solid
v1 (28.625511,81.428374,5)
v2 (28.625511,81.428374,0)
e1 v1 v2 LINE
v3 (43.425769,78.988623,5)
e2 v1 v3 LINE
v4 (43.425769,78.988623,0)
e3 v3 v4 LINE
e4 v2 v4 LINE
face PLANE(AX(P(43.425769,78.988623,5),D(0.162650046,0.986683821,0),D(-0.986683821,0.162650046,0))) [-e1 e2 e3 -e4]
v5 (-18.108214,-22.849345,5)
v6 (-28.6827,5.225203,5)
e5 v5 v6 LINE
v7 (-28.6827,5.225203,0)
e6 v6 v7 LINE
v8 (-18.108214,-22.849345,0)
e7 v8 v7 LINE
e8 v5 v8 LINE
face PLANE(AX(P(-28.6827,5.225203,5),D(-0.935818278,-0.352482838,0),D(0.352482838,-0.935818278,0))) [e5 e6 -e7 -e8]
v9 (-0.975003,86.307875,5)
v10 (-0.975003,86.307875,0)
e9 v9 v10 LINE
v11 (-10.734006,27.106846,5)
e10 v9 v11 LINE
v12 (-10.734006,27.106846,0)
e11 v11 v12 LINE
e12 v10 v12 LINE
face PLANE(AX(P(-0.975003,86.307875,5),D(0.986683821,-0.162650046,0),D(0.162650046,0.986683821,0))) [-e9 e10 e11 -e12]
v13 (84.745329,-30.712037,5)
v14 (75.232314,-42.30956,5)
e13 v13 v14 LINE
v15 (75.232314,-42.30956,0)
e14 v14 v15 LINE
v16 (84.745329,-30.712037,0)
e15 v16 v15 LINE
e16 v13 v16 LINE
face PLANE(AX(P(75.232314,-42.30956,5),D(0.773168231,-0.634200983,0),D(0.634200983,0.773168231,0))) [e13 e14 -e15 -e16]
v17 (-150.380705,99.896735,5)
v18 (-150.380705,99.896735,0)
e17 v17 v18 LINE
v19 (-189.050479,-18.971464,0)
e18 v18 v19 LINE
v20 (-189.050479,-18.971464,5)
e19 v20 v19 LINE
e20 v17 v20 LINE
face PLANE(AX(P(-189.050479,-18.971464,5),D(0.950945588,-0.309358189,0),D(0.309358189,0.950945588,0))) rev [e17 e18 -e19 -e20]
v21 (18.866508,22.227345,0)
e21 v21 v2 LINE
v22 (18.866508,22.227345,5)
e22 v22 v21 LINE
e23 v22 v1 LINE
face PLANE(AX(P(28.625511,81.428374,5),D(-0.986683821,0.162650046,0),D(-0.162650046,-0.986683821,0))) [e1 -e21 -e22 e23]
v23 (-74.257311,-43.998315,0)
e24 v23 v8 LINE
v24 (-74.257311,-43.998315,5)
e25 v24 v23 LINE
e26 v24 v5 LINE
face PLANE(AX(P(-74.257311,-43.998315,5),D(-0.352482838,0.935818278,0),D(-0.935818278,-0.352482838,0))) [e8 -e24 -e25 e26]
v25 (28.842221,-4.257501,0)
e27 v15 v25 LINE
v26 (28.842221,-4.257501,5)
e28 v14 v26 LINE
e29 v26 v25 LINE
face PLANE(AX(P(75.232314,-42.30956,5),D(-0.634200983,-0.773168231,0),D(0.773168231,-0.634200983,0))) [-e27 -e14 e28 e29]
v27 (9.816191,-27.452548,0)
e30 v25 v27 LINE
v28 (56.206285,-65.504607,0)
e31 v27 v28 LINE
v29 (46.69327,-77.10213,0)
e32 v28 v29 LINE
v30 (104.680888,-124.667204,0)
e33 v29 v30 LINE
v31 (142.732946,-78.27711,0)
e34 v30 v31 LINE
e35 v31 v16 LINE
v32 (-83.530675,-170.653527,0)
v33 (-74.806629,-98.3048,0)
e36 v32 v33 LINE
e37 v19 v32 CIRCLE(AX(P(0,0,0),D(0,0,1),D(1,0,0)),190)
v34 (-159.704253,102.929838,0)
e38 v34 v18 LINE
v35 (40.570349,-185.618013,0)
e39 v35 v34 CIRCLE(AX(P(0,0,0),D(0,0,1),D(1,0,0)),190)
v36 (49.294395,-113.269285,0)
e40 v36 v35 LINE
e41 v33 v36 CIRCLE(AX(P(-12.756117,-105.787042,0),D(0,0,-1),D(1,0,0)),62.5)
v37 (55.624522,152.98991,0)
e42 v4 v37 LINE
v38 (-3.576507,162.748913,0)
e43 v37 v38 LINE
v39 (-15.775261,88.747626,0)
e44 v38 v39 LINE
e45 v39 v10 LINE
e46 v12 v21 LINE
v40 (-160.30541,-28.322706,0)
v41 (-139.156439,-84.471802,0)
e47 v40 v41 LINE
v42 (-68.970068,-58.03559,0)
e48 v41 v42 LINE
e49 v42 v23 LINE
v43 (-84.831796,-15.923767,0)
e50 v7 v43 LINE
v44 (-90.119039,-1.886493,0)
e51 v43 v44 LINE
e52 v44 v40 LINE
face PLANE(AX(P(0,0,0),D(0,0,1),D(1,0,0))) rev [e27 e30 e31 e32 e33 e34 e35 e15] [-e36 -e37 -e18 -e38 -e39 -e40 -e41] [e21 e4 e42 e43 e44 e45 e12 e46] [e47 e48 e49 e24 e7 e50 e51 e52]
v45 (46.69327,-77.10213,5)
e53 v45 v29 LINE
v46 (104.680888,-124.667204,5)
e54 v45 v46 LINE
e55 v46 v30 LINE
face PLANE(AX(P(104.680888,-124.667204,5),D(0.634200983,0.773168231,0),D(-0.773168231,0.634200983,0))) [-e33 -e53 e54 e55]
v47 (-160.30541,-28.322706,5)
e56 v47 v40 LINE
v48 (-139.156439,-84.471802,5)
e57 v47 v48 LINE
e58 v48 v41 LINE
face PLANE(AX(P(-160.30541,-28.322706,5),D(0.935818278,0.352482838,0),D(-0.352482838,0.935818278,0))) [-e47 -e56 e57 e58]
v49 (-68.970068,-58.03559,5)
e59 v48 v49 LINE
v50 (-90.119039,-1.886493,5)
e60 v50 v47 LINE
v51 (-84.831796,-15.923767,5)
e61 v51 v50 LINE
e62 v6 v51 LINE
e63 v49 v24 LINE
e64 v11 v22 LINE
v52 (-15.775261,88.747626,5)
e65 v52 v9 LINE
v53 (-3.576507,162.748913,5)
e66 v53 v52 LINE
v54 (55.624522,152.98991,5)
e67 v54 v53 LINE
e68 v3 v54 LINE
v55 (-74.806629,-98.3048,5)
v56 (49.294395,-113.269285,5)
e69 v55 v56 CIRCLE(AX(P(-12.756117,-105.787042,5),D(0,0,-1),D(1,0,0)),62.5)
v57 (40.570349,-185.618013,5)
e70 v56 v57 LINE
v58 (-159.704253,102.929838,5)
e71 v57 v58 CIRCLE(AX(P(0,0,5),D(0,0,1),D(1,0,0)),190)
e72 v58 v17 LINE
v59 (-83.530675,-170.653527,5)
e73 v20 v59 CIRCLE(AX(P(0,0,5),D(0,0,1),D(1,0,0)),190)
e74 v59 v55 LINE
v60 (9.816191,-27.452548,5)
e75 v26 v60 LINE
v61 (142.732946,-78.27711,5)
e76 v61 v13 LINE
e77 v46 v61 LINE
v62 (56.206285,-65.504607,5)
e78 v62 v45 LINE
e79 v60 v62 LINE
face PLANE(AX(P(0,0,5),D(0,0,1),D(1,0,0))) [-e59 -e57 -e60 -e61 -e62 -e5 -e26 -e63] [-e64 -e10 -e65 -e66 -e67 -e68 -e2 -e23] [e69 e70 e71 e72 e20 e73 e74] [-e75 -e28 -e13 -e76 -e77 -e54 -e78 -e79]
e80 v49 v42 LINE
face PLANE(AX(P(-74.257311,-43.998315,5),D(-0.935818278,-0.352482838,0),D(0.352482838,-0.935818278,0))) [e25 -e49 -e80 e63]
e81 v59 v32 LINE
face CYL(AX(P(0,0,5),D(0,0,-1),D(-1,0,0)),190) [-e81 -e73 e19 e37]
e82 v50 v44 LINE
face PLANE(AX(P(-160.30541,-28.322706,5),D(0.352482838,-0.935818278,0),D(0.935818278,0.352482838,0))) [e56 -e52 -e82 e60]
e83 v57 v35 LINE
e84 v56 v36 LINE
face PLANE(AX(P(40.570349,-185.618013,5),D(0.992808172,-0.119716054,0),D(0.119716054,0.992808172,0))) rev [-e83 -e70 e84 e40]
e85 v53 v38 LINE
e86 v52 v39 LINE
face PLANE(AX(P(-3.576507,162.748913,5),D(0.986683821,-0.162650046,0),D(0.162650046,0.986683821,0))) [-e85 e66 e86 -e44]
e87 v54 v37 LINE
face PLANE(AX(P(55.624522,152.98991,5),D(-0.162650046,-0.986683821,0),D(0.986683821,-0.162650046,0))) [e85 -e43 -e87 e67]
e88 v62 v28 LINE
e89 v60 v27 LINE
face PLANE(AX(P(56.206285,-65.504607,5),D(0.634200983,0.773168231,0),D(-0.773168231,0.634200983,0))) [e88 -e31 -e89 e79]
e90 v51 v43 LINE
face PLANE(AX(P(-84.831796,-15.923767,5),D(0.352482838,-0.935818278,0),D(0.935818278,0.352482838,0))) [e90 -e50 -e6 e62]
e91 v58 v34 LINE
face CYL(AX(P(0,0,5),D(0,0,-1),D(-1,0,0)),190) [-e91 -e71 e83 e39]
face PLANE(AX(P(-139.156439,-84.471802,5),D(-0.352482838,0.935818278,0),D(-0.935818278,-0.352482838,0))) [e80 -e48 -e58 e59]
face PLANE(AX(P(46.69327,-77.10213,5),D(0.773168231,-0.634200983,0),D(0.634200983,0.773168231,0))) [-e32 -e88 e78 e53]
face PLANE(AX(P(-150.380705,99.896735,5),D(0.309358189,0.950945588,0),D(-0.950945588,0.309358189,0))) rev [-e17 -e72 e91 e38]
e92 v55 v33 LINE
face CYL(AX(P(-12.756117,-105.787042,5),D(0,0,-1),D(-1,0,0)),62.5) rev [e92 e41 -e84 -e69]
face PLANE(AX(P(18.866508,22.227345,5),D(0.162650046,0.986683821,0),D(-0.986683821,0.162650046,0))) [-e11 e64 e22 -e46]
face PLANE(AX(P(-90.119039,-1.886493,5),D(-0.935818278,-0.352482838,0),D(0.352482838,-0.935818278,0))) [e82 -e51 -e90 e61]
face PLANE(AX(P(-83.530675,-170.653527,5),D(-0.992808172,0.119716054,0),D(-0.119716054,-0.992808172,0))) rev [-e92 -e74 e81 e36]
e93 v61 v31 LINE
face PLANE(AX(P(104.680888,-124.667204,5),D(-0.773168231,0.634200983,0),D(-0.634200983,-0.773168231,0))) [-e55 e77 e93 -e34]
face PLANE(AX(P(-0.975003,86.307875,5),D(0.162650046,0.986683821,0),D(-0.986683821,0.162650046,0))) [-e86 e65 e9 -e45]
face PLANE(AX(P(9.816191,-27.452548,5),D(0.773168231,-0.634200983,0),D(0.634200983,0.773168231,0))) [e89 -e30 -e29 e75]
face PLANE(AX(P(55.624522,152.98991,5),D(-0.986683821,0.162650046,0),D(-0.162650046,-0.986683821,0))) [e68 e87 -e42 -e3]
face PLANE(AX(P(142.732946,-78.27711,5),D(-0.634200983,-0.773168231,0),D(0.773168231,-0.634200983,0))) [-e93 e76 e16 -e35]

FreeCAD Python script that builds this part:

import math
import FreeCAD as App
import Part
import Sketcher

V = App.Vector
Q = App.Units.Quantity


def add_polygon(sketch, points):
    """Adds a closed chain of lines whose ends are joined by coincident constraints."""
    first, n = sketch.GeometryCount, len(points)
    for a, b in zip(points, points[1:] + points[:1]):
        sketch.addGeometry(Part.LineSegment(App.Vector(*a, 0), App.Vector(*b, 0)), False)
    for i in range(n):
        sketch.addConstraint(Sketcher.Constraint("Coincident", first + i, 2, first + (i + 1) % n, 1))

doc = App.newDocument("Part")
body = doc.addObject("PartDesign::Body", "Body")

sketch1 = body.newObject("Sketcher::SketchObject", "Sketch")
sketch1.AttachmentSupport = (doc.getObject("XY_Plane"), [""])
sketch1.MapMode = "FlatFace"
sketch1.addGeometry(Part.LineSegment(V(-83.530675, -170.653527, 0), V(-74.806629, -98.3048, 0)), False)
sketch1.addGeometry(Part.ArcOfCircle(Part.Circle(V(-12.756117, -105.787042, 0), V(0, 0, 1), 62.5), math.radians(-6.875706), math.radians(173.124294)), False)
sketch1.addGeometry(Part.LineSegment(V(49.294395, -113.269285, 0), V(40.570349, -185.618013, 0)), False)
sketch1.addGeometry(Part.ArcOfCircle(Part.Circle(V(0, 0, 0), V(0, 0, 1), 190), math.radians(-77.670808), math.radians(147.198106)), False)
sketch1.addGeometry(Part.LineSegment(V(-159.704253, 102.929838, 0), V(-150.380705, 99.896735, 0)), False)
sketch1.addGeometry(Part.LineSegment(V(-150.380705, 99.896735, 0), V(-189.050479, -18.971464, 0)), False)
sketch1.addGeometry(Part.ArcOfCircle(Part.Circle(V(0, 0, 0), V(0, 0, 1), 190), math.radians(-174.269478), math.radians(-116.080603)), False)
add_polygon(sketch1, [(-18.108214, -22.849345), (-74.257311, -43.998315), (-68.970068, -58.03559), (-139.156439, -84.471802), (-160.30541, -28.322706), (-90.119039, -1.886493), (-84.831796, -15.923767), (-28.6827, 5.225203)])
add_polygon(sketch1, [(28.842221, -4.257501), (75.232314, -42.30956), (84.745329, -30.712037), (142.732946, -78.27711), (104.680888, -124.667204), (46.69327, -77.10213), (56.206285, -65.504607), (9.816191, -27.452548)])
add_polygon(sketch1, [(-10.734006, 27.106846), (-0.975003, 86.307875), (-15.775261, 88.747626), (-3.576507, 162.748913), (55.624522, 152.98991), (43.425769, 78.988623), (28.625511, 81.428374), (18.866508, 22.227345)])
sketch1.addConstraint([
    Sketcher.Constraint("Coincident", 0, 2, 1, 2),
    Sketcher.Constraint("Coincident", 1, 1, 2, 1),
    Sketcher.Constraint("Coincident", 2, 2, 3, 1),
    Sketcher.Constraint("Coincident", 3, 2, 4, 1),
    Sketcher.Constraint("Coincident", 4, 2, 5, 1),
    Sketcher.Constraint("Coincident", 5, 2, 6, 1),
    Sketcher.Constraint("Coincident", 6, 2, 0, 1),
    Sketcher.Constraint("Coincident", 3, 3, -1, 1),
    Sketcher.Constraint("Coincident", 6, 3, -1, 1),
    Sketcher.Constraint("Radius", 3, Q("190 mm")),
    Sketcher.Constraint("Radius", 6, Q("190 mm")),
    Sketcher.Constraint("Radius", 1, Q("62.5 mm")),
    Sketcher.Constraint("Distance", 5, Q("125 mm")),
    Sketcher.Constraint("Distance", 7, Q("60 mm")),
    Sketcher.Constraint("Distance", 8, Q("15 mm")),
    Sketcher.Constraint("Distance", 9, Q("75 mm")),
    Sketcher.Constraint("Distance", 10, Q("60 mm")),
    Sketcher.Constraint("Distance", 11, Q("75 mm")),
    Sketcher.Constraint("Distance", 12, Q("15 mm")),
    Sketcher.Constraint("Distance", 13, Q("60 mm")),
    Sketcher.Constraint("Distance", 14, Q("30 mm")),
    Sketcher.Constraint("Distance", 15, Q("60 mm")),
    Sketcher.Constraint("Distance", 16, Q("15 mm")),
    Sketcher.Constraint("Distance", 17, Q("75 mm")),
    Sketcher.Constraint("Distance", 18, Q("60 mm")),
    Sketcher.Constraint("Distance", 19, Q("75 mm")),
    Sketcher.Constraint("Distance", 20, Q("15 mm")),
    Sketcher.Constraint("Distance", 21, Q("60 mm")),
    Sketcher.Constraint("Distance", 22, Q("30 mm")),
    Sketcher.Constraint("Distance", 23, Q("60 mm")),
    Sketcher.Constraint("Distance", 24, Q("15 mm")),
    Sketcher.Constraint("Distance", 25, Q("75 mm")),
    Sketcher.Constraint("Distance", 26, Q("60 mm")),
    Sketcher.Constraint("Distance", 27, Q("75 mm")),
    Sketcher.Constraint("Distance", 28, Q("15 mm")),
    Sketcher.Constraint("Distance", 29, Q("60 mm")),
    Sketcher.Constraint("Distance", 30, Q("30 mm")),
    Sketcher.Constraint("Distance", 4, Q("9.804502 mm")),
    Sketcher.Constraint("DistanceY", 0, 2, -1, 1, Q("98.3048 mm")),
    Sketcher.Constraint("DistanceX", 13, 2, -1, 1, Q("28.6827 mm")),
    Sketcher.Constraint("DistanceY", 22, 2, -1, 1, Q("4.257501 mm")),
    Sketcher.Constraint("DistanceY", 5, 2, 4, 2, Q("118.868198 mm")),
    Sketcher.Constraint("DistanceY", 5, 2, 3, 2, Q("121.901301 mm")),
    Sketcher.Constraint("DistanceX", 10, 2, 7, 2, Q("86.048099 mm")),
    Sketcher.Constraint("DistanceX", 4, 2, 25, 2, Q("146.804198 mm")),
    Sketcher.Constraint("DistanceX", 22, 2, 26, 2, Q("26.782302 mm")),
    Sketcher.Constraint("DistanceY", 28, 2, 23, 2, Q("4.879501 mm")),
    Sketcher.Constraint("DistanceY", 29, 2, 30, 2, Q("4.879501 mm")),
    Sketcher.Constraint("DistanceX", 0, 2, -1, 1, Q("74.806629 mm")),
    Sketcher.Constraint("DistanceX", -1, 1, 2, 2, Q("40.570349 mm")),
    Sketcher.Constraint("DistanceX", 7, 2, -1, 1, Q("74.257311 mm")),
    Sketcher.Constraint("DistanceX", 8, 2, -1, 1, Q("68.970068 mm")),
    Sketcher.Constraint("DistanceY", 8, 2, -1, 1, Q("58.03559 mm")),
    Sketcher.Constraint("DistanceX", 9, 2, -1, 1, Q("139.156439 mm")),
    Sketcher.Constraint("DistanceX", 11, 2, -1, 1, Q("90.119039 mm")),
    Sketcher.Constraint("DistanceY", 15, 2, -1, 1, Q("42.30956 mm")),
    Sketcher.Constraint("DistanceX", -1, 1, 16, 2, Q("84.745329 mm")),
    Sketcher.Constraint("DistanceY", 17, 2, -1, 1, Q("78.27711 mm")),
    Sketcher.Constraint("DistanceX", -1, 1, 19, 2, Q("46.69327 mm")),
    Sketcher.Constraint("DistanceY", 19, 2, -1, 1, Q("77.10213 mm")),
    Sketcher.Constraint("DistanceX", -1, 1, 21, 2, Q("9.816191 mm")),
    Sketcher.Constraint("DistanceY", 21, 2, -1, 1, Q("27.452548 mm")),
    Sketcher.Constraint("DistanceX", 24, 2, -1, 1, Q("15.775261 mm")),
    Sketcher.Constraint("DistanceY", -1, 1, 26, 2, Q("152.98991 mm")),
    Sketcher.Constraint("DistanceX", -1, 1, 28, 2, Q("28.625511 mm")),
    Sketcher.Constraint("DistanceX", -1, 1, 29, 2, Q("18.866508 mm")),
    Sketcher.Constraint("DistanceY", 2, 2, 1, 3, Q("79.830971 mm")),
    Sketcher.Constraint("DistanceX", 6, 2, 1, 3, Q("70.774558 mm")),
    Sketcher.Constraint("DistanceY", 6, 2, 1, 1, Q("57.384242 mm")),
    Sketcher.Constraint("DistanceY", 7, 2, 12, 2, Q("28.074548 mm")),
])
pad1 = body.newObject("PartDesign::Pad", "Pad")
pad1.Profile = sketch1
pad1.Length = 5

doc.recompute()
